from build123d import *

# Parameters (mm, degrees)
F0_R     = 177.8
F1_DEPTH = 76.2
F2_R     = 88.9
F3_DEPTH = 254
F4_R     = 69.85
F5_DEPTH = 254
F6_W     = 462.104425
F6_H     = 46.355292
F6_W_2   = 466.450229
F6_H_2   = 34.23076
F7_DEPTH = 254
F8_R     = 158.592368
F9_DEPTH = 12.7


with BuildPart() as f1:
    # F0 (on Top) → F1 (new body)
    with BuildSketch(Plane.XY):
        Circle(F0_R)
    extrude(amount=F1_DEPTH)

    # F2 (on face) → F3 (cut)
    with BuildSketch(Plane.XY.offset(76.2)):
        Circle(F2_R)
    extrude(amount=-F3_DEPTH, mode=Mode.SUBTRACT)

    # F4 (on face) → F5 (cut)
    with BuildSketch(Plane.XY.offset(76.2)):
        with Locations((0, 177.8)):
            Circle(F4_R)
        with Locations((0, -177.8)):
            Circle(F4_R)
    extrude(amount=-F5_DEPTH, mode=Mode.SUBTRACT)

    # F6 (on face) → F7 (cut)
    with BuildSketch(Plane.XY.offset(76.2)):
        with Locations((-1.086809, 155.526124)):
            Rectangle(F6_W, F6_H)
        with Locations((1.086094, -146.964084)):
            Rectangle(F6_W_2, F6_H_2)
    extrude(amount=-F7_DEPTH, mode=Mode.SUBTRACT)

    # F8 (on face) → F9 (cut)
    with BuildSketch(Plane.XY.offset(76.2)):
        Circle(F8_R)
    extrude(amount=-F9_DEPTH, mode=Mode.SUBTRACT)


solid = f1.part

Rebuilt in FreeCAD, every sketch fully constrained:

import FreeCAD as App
import Part
import Sketcher
Q = App.Units.Quantity


def add_polygon(sketch, points):
    """Adds a closed chain of lines whose ends are joined by coincident constraints."""
    first, n = sketch.GeometryCount, len(points)
    for a, b in zip(points, points[1:] + points[:1]):
        sketch.addGeometry(Part.LineSegment(App.Vector(*a, 0), App.Vector(*b, 0)), False)
    for i in range(n):
        sketch.addConstraint(Sketcher.Constraint("Coincident", first + i, 2, first + (i + 1) % n, 1))

doc = App.newDocument("Part")
body = doc.addObject("PartDesign::Body", "Body")

# Sketch on XY plane
sketch1 = body.newObject("Sketcher::SketchObject", "Sketch")
sketch1.AttachmentSupport = (doc.getObject("XY_Plane"), [""])
sketch1.MapMode = "FlatFace"
sketch1.addGeometry(Part.Circle(App.Vector(0, 0, 0), App.Vector(0, 0, 1), 177.8), False)
sketch1.addConstraint(Sketcher.Constraint("Coincident", 0, 3, -1, 1))
sketch1.addConstraint(Sketcher.Constraint("Diameter", 0, Q("14 in")))
pad1 = body.newObject("PartDesign::Pad", "Pad")
pad1.Profile = sketch1
pad1.Length = Q("3 in")

# Sketch on XY plane
sketch2 = body.newObject("Sketcher::SketchObject", "Sketch001")
sketch2.AttachmentSupport = (doc.getObject("XY_Plane"), [""])
sketch2.MapMode = "FlatFace"
sketch2.AttachmentOffset = App.Placement(App.Vector(0, 0, 3 * 25.4), App.Rotation())
sketch2.addGeometry(Part.Circle(App.Vector(0, 0, 0), App.Vector(0, 0, 1), 88.9), False)
sketch2.addConstraint(Sketcher.Constraint("Coincident", 0, 3, -1, 1))
sketch2.addConstraint(Sketcher.Constraint("Diameter", 0, Q("7 in")))
pocket1 = body.newObject("PartDesign::Pocket", "Pocket")
pocket1.Profile = sketch2
pocket1.Length = Q("10 in")

# Sketch on XY plane
sketch3 = body.newObject("Sketcher::SketchObject", "Sketch002")
sketch3.AttachmentSupport = (doc.getObject("XY_Plane"), [""])
sketch3.MapMode = "FlatFace"
sketch3.AttachmentOffset = App.Placement(App.Vector(0, 0, 3 * 25.4), App.Rotation())
sketch3.addGeometry(Part.Circle(App.Vector(0, 177.8, 0), App.Vector(0, 0, 1), 69.85), False)
sketch3.addGeometry(Part.Circle(App.Vector(0, -177.8, 0), App.Vector(0, 0, 1), 69.85), False)
sketch3.addConstraint(Sketcher.Constraint("Equal", 0, 1))
sketch3.addConstraint(Sketcher.Constraint("Symmetric", 0, 3, 1, 3, -1, 1))
sketch3.addConstraint(Sketcher.Constraint("PointOnObject", 0, 3, -2))
sketch3.addConstraint(Sketcher.Constraint("Diameter", 0, Q("5.5 in")))
sketch3.addConstraint(Sketcher.Constraint("DistanceY", -1, 1, 0, 3, Q("7 in")))
pocket2 = body.newObject("PartDesign::Pocket", "Pocket001")
pocket2.Profile = sketch3
pocket2.Length = Q("10 in")

# Sketch on XY plane
sketch4 = body.newObject("Sketcher::SketchObject", "Sketch003")
sketch4.AttachmentSupport = (doc.getObject("XY_Plane"), [""])
sketch4.MapMode = "FlatFace"
sketch4.AttachmentOffset = App.Placement(App.Vector(0, 0, 3 * 25.4), App.Rotation())
add_polygon(sketch4, [(-232.139022, 178.70377), (-232.139022, 132.348478), (229.965404, 132.348478), (229.965404, 178.70377)])  # lines 0-3
add_polygon(sketch4, [(-232.13902, -129.848704), (-232.13902, -164.079464), (234.311208, -164.079464), (234.311208, -129.848704)])  # lines 4-7
sketch4.addConstraint(Sketcher.Constraint("Vertical", 0))
sketch4.addConstraint(Sketcher.Constraint("Horizontal", 1))
sketch4.addConstraint(Sketcher.Constraint("Vertical", 2))
sketch4.addConstraint(Sketcher.Constraint("Horizontal", 3))
sketch4.addConstraint(Sketcher.Constraint("Vertical", 4))
sketch4.addConstraint(Sketcher.Constraint("Horizontal", 5))
sketch4.addConstraint(Sketcher.Constraint("Vertical", 6))
sketch4.addConstraint(Sketcher.Constraint("Horizontal", 7))
sketch4.addConstraint(Sketcher.Constraint("Vertical", 3, 2, 4, 2))
sketch4.addConstraint(Sketcher.Constraint("DistanceX", 5, 1, 5, 2, Q("466.450229 mm")))
sketch4.addConstraint(Sketcher.Constraint("DistanceY", 0, 2, 0, 1, Q("46.355292 mm")))
sketch4.addConstraint(Sketcher.Constraint("DistanceY", 4, 2, 4, 1, Q("34.23076 mm")))
sketch4.addConstraint(Sketcher.Constraint("DistanceX", 1, 1, 1, 2, Q("462.104425 mm")))
sketch4.addConstraint(Sketcher.Constraint("DistanceX", 0, 2, -1, 1, Q("232.139022 mm")))
sketch4.addConstraint(Sketcher.Constraint("DistanceY", -1, 1, 0, 2, Q("132.348478 mm")))
sketch4.addConstraint(Sketcher.Constraint("DistanceY", 6, 2, 1, 2, Q("262.197182 mm")))
pocket3 = body.newObject("PartDesign::Pocket", "Pocket002")
pocket3.Profile = sketch4
pocket3.Length = Q("10 in")

# Sketch on XY plane
sketch5 = body.newObject("Sketcher::SketchObject", "Sketch004")
sketch5.AttachmentSupport = (doc.getObject("XY_Plane"), [""])
sketch5.MapMode = "FlatFace"
sketch5.AttachmentOffset = App.Placement(App.Vector(0, 0, 3 * 25.4), App.Rotation())
sketch5.addGeometry(Part.Circle(App.Vector(0, 0, 0), App.Vector(0, 0, 1), 158.592368), False)
sketch5.addConstraint(Sketcher.Constraint("Coincident", 0, 3, -1, 1))
sketch5.addConstraint(Sketcher.Constraint("Diameter", 0, Q("317.184736 mm")))
pocket4 = body.newObject("PartDesign::Pocket", "Pocket003")
pocket4.Profile = sketch5
pocket4.Length = Q("0.5 in")

doc.recompute()
